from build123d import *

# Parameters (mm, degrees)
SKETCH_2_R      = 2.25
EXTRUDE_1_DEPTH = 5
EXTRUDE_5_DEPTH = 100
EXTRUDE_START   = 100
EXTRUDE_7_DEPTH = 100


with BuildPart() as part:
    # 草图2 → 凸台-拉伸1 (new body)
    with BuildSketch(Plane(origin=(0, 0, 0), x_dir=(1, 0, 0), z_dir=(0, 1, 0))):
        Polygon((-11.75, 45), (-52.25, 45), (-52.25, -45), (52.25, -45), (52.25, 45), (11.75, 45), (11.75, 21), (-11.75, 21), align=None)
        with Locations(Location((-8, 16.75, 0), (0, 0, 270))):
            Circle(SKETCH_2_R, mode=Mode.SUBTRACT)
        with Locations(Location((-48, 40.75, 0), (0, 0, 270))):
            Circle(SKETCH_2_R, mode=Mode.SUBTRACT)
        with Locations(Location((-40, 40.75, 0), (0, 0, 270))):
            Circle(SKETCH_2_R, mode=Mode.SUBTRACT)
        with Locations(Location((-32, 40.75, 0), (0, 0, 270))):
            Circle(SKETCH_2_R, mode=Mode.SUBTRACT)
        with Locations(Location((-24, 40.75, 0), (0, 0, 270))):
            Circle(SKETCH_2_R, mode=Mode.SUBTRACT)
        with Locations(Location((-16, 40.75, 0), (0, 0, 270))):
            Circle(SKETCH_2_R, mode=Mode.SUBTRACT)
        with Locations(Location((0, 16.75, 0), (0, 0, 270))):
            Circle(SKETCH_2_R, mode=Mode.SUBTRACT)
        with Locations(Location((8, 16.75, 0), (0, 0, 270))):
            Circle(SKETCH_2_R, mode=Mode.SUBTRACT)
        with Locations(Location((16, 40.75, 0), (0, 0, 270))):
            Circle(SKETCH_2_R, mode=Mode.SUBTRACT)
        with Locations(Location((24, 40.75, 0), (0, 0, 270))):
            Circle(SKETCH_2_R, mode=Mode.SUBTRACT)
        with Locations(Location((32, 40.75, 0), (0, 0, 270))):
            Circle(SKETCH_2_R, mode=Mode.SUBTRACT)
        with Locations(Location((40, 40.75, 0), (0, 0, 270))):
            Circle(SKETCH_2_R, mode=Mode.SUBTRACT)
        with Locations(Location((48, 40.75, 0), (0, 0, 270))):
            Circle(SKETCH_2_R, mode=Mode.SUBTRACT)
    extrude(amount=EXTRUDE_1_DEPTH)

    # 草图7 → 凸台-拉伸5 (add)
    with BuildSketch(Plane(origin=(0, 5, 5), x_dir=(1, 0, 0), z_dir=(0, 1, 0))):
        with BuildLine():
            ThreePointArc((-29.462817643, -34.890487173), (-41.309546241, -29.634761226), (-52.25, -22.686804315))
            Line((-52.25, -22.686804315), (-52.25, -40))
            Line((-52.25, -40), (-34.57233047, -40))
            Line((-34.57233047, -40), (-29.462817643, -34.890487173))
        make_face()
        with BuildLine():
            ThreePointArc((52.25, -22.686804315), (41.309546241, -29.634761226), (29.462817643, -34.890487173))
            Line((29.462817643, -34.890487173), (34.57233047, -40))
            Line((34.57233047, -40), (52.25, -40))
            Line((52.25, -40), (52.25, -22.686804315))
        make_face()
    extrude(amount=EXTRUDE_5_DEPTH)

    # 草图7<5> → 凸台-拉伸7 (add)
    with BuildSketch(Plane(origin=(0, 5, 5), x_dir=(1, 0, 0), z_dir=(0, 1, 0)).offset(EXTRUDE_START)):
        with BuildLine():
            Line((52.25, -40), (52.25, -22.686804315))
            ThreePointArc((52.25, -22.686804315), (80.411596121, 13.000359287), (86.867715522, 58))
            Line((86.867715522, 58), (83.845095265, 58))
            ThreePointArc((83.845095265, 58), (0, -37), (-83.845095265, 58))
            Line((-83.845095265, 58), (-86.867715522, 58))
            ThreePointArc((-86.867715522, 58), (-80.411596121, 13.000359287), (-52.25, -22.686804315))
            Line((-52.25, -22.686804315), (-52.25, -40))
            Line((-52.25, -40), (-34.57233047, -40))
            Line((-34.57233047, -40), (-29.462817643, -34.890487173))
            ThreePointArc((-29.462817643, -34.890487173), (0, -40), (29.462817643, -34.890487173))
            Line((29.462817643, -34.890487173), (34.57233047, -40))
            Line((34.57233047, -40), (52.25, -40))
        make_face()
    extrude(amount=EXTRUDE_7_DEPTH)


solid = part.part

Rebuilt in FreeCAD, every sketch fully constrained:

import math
import FreeCAD as App
import Part
import Sketcher

V = App.Vector

doc = App.newDocument("Part")
body = doc.addObject("PartDesign::Body", "Body")

# Sketch on XZ plane
sketch1 = doc.addObject("Sketcher::SketchObject", "Sketch")
body.addObject(sketch1)
sketch1.AttachmentSupport = (doc.XZ_Plane, [""])
sketch1.MapMode = "FlatFace"
sketch1.addGeometry([
    Part.LineSegment(V(-11.75, -45, 0), V(-52.25, -45, 0)),  # 0
    Part.LineSegment(V(-52.25, -45, 0), V(-52.25, 45, 0)),  # 1
    Part.LineSegment(V(-52.25, 45, 0), V(52.25, 45, 0)),  # 2
    Part.LineSegment(V(52.25, 45, 0), V(52.25, -45, 0)),  # 3
    Part.LineSegment(V(52.25, -45, 0), V(11.75, -45, 0)),  # 4
    Part.LineSegment(V(11.75, -45, 0), V(11.75, -21, 0)),  # 5
    Part.LineSegment(V(11.75, -21, 0), V(-11.75, -21, 0)),  # 6
    Part.LineSegment(V(-11.75, -21, 0), V(-11.75, -45, 0)),  # 7
    Part.Circle(V(-8, -16.75, 0), V(0, 0, 1), 2.25),  # 8
    Part.Circle(V(0, -16.75, 0), V(0, 0, 1), 2.25),  # 9
    Part.Circle(V(8, -16.75, 0), V(0, 0, 1), 2.25),  # 10
    Part.Circle(V(-48, -40.75, 0), V(0, 0, 1), 2.25),  # 11
    Part.Circle(V(-40, -40.75, 0), V(0, 0, 1), 2.25),  # 12
    Part.Circle(V(-32, -40.75, 0), V(0, 0, 1), 2.25),  # 13
    Part.Circle(V(-24, -40.75, 0), V(0, 0, 1), 2.25),  # 14
    Part.Circle(V(-16, -40.75, 0), V(0, 0, 1), 2.25),  # 15
    Part.Circle(V(16, -40.75, 0), V(0, 0, 1), 2.25),  # 16
    Part.Circle(V(24, -40.75, 0), V(0, 0, 1), 2.25),  # 17
    Part.Circle(V(32, -40.75, 0), V(0, 0, 1), 2.25),  # 18
    Part.Circle(V(40, -40.75, 0), V(0, 0, 1), 2.25),  # 19
    Part.Circle(V(48, -40.75, 0), V(0, 0, 1), 2.25),  # 20
], False)
sketch1.addConstraint([
    Sketcher.Constraint("Coincident", 0, 2, 1, 1),
    Sketcher.Constraint("Coincident", 1, 2, 2, 1),
    Sketcher.Constraint("Coincident", 2, 2, 3, 1),
    Sketcher.Constraint("Coincident", 3, 2, 4, 1),
    Sketcher.Constraint("Coincident", 4, 2, 5, 1),
    Sketcher.Constraint("Coincident", 5, 2, 6, 1),
    Sketcher.Constraint("Coincident", 6, 2, 7, 1),
    Sketcher.Constraint("Coincident", 7, 2, 0, 1),
    Sketcher.Constraint("Horizontal", 0),
    Sketcher.Constraint("Vertical", 1),
    Sketcher.Constraint("Horizontal", 2),
    Sketcher.Constraint("Vertical", 3),
    Sketcher.Constraint("Horizontal", 4),
    Sketcher.Constraint("Vertical", 5),
    Sketcher.Constraint("Horizontal", 6),
    Sketcher.Constraint("Vertical", 7),
    Sketcher.Constraint("Equal", 8, 9),
    Sketcher.Constraint("Equal", 9, 10),
    Sketcher.Constraint("Equal", 10, 11),
    Sketcher.Constraint("Equal", 11, 12),
    Sketcher.Constraint("Equal", 12, 13),
    Sketcher.Constraint("Equal", 13, 14),
    Sketcher.Constraint("Equal", 14, 15),
    Sketcher.Constraint("Equal", 15, 16),
    Sketcher.Constraint("Equal", 16, 17),
    Sketcher.Constraint("Equal", 17, 18),
    Sketcher.Constraint("Equal", 18, 19),
    Sketcher.Constraint("Equal", 19, 20),
    Sketcher.Constraint("Symmetric", 0, 2, 2, 2, -1, 1),
    Sketcher.Constraint("Symmetric", 8, 3, 10, 3, -2),
    Sketcher.Constraint("Symmetric", 15, 3, 16, 3, -2),
    Sketcher.Constraint("Symmetric", 14, 3, 17, 3, -2),
    Sketcher.Constraint("Symmetric", 13, 3, 18, 3, -2),
    Sketcher.Constraint("Symmetric", 12, 3, 19, 3, -2),
    Sketcher.Constraint("Symmetric", 11, 3, 20, 3, -2),
    Sketcher.Constraint("Symmetric", 4, 2, 7, 2, -2),
    Sketcher.Constraint("PointOnObject", 9, 3, -2),
    Sketcher.Constraint("Horizontal", 8, 3, 9, 3),
    Sketcher.Constraint("Horizontal", 11, 3, 12, 3),
    Sketcher.Constraint("Horizontal", 12, 3, 13, 3),
    Sketcher.Constraint("Horizontal", 13, 3, 14, 3),
    Sketcher.Constraint("Horizontal", 14, 3, 15, 3),
    Sketcher.Constraint("Diameter", 8, 4.5),
    Sketcher.Constraint("DistanceY", 1, 1, 1, 2, 90.0),
    Sketcher.Constraint("DistanceY", 5, 1, 5, 2, 24.0),
    Sketcher.Constraint("DistanceX", 0, 2, 0, 1, 40.5),
    Sketcher.Constraint("DistanceX", 2, 1, 2, 2, 104.5),
    Sketcher.Constraint("DistanceX", 8, 3, -1, 1, 8.0),
    Sketcher.Constraint("DistanceX", 11, 3, -1, 1, 48.0),
    Sketcher.Constraint("DistanceX", 12, 3, -1, 1, 40.0),
    Sketcher.Constraint("DistanceX", 13, 3, -1, 1, 32.0),
    Sketcher.Constraint("DistanceX", 14, 3, -1, 1, 24.0),
    Sketcher.Constraint("DistanceX", 15, 3, -1, 1, 16.0),
    Sketcher.Constraint("DistanceY", 11, 3, 8, 3, 24.0),
    Sketcher.Constraint("DistanceY", 8, 3, -1, 1, 16.75),
])
pad1 = doc.addObject("PartDesign::Pad", "Pad")
body.addObject(pad1)
pad1.Profile = sketch1
pad1.Length = 5
pad1.Reversed = True

# Sketch on XZ plane
sketch2 = doc.addObject("Sketcher::SketchObject", "Sketch001")
body.addObject(sketch2)
sketch2.AttachmentSupport = (doc.XZ_Plane, [""])
sketch2.MapMode = "FlatFace"
sketch2.AttachmentOffset = App.Placement(V(0, 0, -5), App.Rotation())
sketch2.addGeometry([
    Part.ArcOfCircle(Part.Circle(V(0, -42.5, 0), V(0, 0, 1), 87.5), math.radians(109.677037), math.radians(126.665543)),  # 0
    Part.LineSegment(V(-52.25, 27.686804, 0), V(-52.25, 45, 0)),  # 1
    Part.LineSegment(V(-52.25, 45, 0), V(-34.57233, 45, 0)),  # 2
    Part.LineSegment(V(-34.57233, 45, 0), V(-29.462818, 39.890487, 0)),  # 3
    Part.ArcOfCircle(Part.Circle(V(0, -42.5, 0), V(0, 0, 1), 87.5), math.radians(53.334457), math.radians(70.322963)),  # 4
    Part.LineSegment(V(29.462818, 39.890487, 0), V(34.57233, 45, 0)),  # 5
    Part.LineSegment(V(34.57233, 45, 0), V(52.25, 45, 0)),  # 6
    Part.LineSegment(V(52.25, 45, 0), V(52.25, 27.686804, 0)),  # 7
], False)
sketch2.addConstraint([
    Sketcher.Constraint("Coincident", 0, 2, 1, 1),
    Sketcher.Constraint("Coincident", 1, 2, 2, 1),
    Sketcher.Constraint("Coincident", 2, 2, 3, 1),
    Sketcher.Constraint("Coincident", 3, 2, 0, 1),
    Sketcher.Constraint("Coincident", 4, 2, 5, 1),
    Sketcher.Constraint("Coincident", 5, 2, 6, 1),
    Sketcher.Constraint("Coincident", 6, 2, 7, 1),
    Sketcher.Constraint("Coincident", 7, 2, 4, 1),
    Sketcher.Constraint("Vertical", 1),
    Sketcher.Constraint("Horizontal", 2),
    Sketcher.Constraint("Horizontal", 6),
    Sketcher.Constraint("Vertical", 7),
    Sketcher.Constraint("Coincident", 4, 3, 0, 3),
    Sketcher.Constraint("Equal", 0, 4),
    Sketcher.Constraint("Symmetric", 3, 2, 4, 2, -2),
    Sketcher.Constraint("Symmetric", 2, 2, 5, 2, -2),
    Sketcher.Constraint("Perpendicular", 3, 5),
    Sketcher.Constraint("Horizontal", 0, 2, 7, 2),
    Sketcher.Constraint("Radius", 0, 87.5),
    Sketcher.Constraint("DistanceY", -1, 1, 1, 2, 45.0),
    Sketcher.Constraint("DistanceY", 0, 3, -1, 1, 42.5),
    Sketcher.Constraint("DistanceX", 0, 2, -1, 1, 52.25),
    Sketcher.Constraint("DistanceX", 2, 1, 2, 2, 17.67767),
])
pad2 = doc.addObject("PartDesign::Pad", "Pad001")
body.addObject(pad2)
pad2.Profile = sketch2
pad2.Length = 100
pad2.Reversed = True

# Sketch on XZ plane
sketch3 = doc.addObject("Sketcher::SketchObject", "Sketch002")
body.addObject(sketch3)
sketch3.AttachmentSupport = (doc.XZ_Plane, [""])
sketch3.MapMode = "FlatFace"
sketch3.AttachmentOffset = App.Placement(V(0, 0, -105), App.Rotation())
sketch3.addGeometry([
    Part.LineSegment(V(52.25, 45, 0), V(52.25, 27.686804, 0)),  # 0
    Part.ArcOfCircle(Part.Circle(V(0, -42.5, 0), V(0, 0, 1), 87.5), math.radians(-6.892103), math.radians(53.334457)),  # 1
    Part.LineSegment(V(86.867716, -53, 0), V(83.845095, -53, 0)),  # 2
    Part.ArcOfCircle(Part.Circle(V(0, -42.5, 0), V(0, 0, 1), 84.5), math.radians(-7.138044), math.radians(187.138044)),  # 3
    Part.LineSegment(V(-83.845095, -53, 0), V(-86.867716, -53, 0)),  # 4
    Part.ArcOfCircle(Part.Circle(V(0, -42.5, 0), V(0, 0, 1), 87.5), math.radians(126.665543), math.radians(186.892103)),  # 5
    Part.LineSegment(V(-52.25, 27.686804, 0), V(-52.25, 45, 0)),  # 6
    Part.LineSegment(V(-52.25, 45, 0), V(-34.57233, 45, 0)),  # 7
    Part.LineSegment(V(-34.57233, 45, 0), V(-29.462818, 39.890487, 0)),  # 8
    Part.ArcOfCircle(Part.Circle(V(0, -42.5, 0), V(0, 0, 1), 87.5), math.radians(70.322963), math.radians(109.677037)),  # 9
    Part.LineSegment(V(29.462818, 39.890487, 0), V(34.57233, 45, 0)),  # 10
    Part.LineSegment(V(34.57233, 45, 0), V(52.25, 45, 0)),  # 11
], False)
sketch3.addConstraint([
    Sketcher.Constraint("Coincident", 0, 2, 1, 2),
    Sketcher.Constraint("Coincident", 1, 1, 2, 1),
    Sketcher.Constraint("Coincident", 2, 2, 3, 1),
    Sketcher.Constraint("Coincident", 3, 2, 4, 1),
    Sketcher.Constraint("Coincident", 4, 2, 5, 2),
    Sketcher.Constraint("Coincident", 5, 1, 6, 1),
    Sketcher.Constraint("Coincident", 6, 2, 7, 1),
    Sketcher.Constraint("Coincident", 7, 2, 8, 1),
    Sketcher.Constraint("Coincident", 8, 2, 9, 2),
    Sketcher.Constraint("Coincident", 9, 1, 10, 1),
    Sketcher.Constraint("Coincident", 10, 2, 11, 1),
    Sketcher.Constraint("Coincident", 11, 2, 0, 1),
    Sketcher.Constraint("Vertical", 0),
    Sketcher.Constraint("Horizontal", 2),
    Sketcher.Constraint("Horizontal", 4),
    Sketcher.Constraint("Vertical", 6),
    Sketcher.Constraint("Horizontal", 7),
    Sketcher.Constraint("Horizontal", 11),
    Sketcher.Constraint("Coincident", 3, 3, 1, 3),
    Sketcher.Constraint("Coincident", 5, 3, 1, 3),
    Sketcher.Constraint("Coincident", 9, 3, 1, 3),
    Sketcher.Constraint("Equal", 1, 5),
    Sketcher.Constraint("Equal", 5, 9),
    Sketcher.Constraint("Symmetric", 2, 2, 3, 2, -2),
    Sketcher.Constraint("Symmetric", 7, 2, 10, 2, -2),
    Sketcher.Constraint("Perpendicular", 8, 10),
    Sketcher.Constraint("Horizontal", 0, 2, 5, 1),
    Sketcher.Constraint("Horizontal", 8, 2, 9, 1),
    Sketcher.Constraint("Radius", 1, 87.5),
    Sketcher.Constraint("Radius", 3, 84.5),
    Sketcher.Constraint("DistanceY", 1, 1, -1, 1, 53.0),
    Sketcher.Constraint("DistanceY", -1, 1, 6, 2, 45.0),
    Sketcher.Constraint("DistanceY", 1, 3, -1, 1, 42.5),
    Sketcher.Constraint("DistanceX", -1, 1, 0, 2, 52.25),
    Sketcher.Constraint("DistanceX", 7, 1, 7, 2, 17.67767),
])
pad3 = doc.addObject("PartDesign::Pad", "Pad002")
body.addObject(pad3)
pad3.Profile = sketch3
pad3.Length = 100
pad3.Reversed = True

doc.recompute()
